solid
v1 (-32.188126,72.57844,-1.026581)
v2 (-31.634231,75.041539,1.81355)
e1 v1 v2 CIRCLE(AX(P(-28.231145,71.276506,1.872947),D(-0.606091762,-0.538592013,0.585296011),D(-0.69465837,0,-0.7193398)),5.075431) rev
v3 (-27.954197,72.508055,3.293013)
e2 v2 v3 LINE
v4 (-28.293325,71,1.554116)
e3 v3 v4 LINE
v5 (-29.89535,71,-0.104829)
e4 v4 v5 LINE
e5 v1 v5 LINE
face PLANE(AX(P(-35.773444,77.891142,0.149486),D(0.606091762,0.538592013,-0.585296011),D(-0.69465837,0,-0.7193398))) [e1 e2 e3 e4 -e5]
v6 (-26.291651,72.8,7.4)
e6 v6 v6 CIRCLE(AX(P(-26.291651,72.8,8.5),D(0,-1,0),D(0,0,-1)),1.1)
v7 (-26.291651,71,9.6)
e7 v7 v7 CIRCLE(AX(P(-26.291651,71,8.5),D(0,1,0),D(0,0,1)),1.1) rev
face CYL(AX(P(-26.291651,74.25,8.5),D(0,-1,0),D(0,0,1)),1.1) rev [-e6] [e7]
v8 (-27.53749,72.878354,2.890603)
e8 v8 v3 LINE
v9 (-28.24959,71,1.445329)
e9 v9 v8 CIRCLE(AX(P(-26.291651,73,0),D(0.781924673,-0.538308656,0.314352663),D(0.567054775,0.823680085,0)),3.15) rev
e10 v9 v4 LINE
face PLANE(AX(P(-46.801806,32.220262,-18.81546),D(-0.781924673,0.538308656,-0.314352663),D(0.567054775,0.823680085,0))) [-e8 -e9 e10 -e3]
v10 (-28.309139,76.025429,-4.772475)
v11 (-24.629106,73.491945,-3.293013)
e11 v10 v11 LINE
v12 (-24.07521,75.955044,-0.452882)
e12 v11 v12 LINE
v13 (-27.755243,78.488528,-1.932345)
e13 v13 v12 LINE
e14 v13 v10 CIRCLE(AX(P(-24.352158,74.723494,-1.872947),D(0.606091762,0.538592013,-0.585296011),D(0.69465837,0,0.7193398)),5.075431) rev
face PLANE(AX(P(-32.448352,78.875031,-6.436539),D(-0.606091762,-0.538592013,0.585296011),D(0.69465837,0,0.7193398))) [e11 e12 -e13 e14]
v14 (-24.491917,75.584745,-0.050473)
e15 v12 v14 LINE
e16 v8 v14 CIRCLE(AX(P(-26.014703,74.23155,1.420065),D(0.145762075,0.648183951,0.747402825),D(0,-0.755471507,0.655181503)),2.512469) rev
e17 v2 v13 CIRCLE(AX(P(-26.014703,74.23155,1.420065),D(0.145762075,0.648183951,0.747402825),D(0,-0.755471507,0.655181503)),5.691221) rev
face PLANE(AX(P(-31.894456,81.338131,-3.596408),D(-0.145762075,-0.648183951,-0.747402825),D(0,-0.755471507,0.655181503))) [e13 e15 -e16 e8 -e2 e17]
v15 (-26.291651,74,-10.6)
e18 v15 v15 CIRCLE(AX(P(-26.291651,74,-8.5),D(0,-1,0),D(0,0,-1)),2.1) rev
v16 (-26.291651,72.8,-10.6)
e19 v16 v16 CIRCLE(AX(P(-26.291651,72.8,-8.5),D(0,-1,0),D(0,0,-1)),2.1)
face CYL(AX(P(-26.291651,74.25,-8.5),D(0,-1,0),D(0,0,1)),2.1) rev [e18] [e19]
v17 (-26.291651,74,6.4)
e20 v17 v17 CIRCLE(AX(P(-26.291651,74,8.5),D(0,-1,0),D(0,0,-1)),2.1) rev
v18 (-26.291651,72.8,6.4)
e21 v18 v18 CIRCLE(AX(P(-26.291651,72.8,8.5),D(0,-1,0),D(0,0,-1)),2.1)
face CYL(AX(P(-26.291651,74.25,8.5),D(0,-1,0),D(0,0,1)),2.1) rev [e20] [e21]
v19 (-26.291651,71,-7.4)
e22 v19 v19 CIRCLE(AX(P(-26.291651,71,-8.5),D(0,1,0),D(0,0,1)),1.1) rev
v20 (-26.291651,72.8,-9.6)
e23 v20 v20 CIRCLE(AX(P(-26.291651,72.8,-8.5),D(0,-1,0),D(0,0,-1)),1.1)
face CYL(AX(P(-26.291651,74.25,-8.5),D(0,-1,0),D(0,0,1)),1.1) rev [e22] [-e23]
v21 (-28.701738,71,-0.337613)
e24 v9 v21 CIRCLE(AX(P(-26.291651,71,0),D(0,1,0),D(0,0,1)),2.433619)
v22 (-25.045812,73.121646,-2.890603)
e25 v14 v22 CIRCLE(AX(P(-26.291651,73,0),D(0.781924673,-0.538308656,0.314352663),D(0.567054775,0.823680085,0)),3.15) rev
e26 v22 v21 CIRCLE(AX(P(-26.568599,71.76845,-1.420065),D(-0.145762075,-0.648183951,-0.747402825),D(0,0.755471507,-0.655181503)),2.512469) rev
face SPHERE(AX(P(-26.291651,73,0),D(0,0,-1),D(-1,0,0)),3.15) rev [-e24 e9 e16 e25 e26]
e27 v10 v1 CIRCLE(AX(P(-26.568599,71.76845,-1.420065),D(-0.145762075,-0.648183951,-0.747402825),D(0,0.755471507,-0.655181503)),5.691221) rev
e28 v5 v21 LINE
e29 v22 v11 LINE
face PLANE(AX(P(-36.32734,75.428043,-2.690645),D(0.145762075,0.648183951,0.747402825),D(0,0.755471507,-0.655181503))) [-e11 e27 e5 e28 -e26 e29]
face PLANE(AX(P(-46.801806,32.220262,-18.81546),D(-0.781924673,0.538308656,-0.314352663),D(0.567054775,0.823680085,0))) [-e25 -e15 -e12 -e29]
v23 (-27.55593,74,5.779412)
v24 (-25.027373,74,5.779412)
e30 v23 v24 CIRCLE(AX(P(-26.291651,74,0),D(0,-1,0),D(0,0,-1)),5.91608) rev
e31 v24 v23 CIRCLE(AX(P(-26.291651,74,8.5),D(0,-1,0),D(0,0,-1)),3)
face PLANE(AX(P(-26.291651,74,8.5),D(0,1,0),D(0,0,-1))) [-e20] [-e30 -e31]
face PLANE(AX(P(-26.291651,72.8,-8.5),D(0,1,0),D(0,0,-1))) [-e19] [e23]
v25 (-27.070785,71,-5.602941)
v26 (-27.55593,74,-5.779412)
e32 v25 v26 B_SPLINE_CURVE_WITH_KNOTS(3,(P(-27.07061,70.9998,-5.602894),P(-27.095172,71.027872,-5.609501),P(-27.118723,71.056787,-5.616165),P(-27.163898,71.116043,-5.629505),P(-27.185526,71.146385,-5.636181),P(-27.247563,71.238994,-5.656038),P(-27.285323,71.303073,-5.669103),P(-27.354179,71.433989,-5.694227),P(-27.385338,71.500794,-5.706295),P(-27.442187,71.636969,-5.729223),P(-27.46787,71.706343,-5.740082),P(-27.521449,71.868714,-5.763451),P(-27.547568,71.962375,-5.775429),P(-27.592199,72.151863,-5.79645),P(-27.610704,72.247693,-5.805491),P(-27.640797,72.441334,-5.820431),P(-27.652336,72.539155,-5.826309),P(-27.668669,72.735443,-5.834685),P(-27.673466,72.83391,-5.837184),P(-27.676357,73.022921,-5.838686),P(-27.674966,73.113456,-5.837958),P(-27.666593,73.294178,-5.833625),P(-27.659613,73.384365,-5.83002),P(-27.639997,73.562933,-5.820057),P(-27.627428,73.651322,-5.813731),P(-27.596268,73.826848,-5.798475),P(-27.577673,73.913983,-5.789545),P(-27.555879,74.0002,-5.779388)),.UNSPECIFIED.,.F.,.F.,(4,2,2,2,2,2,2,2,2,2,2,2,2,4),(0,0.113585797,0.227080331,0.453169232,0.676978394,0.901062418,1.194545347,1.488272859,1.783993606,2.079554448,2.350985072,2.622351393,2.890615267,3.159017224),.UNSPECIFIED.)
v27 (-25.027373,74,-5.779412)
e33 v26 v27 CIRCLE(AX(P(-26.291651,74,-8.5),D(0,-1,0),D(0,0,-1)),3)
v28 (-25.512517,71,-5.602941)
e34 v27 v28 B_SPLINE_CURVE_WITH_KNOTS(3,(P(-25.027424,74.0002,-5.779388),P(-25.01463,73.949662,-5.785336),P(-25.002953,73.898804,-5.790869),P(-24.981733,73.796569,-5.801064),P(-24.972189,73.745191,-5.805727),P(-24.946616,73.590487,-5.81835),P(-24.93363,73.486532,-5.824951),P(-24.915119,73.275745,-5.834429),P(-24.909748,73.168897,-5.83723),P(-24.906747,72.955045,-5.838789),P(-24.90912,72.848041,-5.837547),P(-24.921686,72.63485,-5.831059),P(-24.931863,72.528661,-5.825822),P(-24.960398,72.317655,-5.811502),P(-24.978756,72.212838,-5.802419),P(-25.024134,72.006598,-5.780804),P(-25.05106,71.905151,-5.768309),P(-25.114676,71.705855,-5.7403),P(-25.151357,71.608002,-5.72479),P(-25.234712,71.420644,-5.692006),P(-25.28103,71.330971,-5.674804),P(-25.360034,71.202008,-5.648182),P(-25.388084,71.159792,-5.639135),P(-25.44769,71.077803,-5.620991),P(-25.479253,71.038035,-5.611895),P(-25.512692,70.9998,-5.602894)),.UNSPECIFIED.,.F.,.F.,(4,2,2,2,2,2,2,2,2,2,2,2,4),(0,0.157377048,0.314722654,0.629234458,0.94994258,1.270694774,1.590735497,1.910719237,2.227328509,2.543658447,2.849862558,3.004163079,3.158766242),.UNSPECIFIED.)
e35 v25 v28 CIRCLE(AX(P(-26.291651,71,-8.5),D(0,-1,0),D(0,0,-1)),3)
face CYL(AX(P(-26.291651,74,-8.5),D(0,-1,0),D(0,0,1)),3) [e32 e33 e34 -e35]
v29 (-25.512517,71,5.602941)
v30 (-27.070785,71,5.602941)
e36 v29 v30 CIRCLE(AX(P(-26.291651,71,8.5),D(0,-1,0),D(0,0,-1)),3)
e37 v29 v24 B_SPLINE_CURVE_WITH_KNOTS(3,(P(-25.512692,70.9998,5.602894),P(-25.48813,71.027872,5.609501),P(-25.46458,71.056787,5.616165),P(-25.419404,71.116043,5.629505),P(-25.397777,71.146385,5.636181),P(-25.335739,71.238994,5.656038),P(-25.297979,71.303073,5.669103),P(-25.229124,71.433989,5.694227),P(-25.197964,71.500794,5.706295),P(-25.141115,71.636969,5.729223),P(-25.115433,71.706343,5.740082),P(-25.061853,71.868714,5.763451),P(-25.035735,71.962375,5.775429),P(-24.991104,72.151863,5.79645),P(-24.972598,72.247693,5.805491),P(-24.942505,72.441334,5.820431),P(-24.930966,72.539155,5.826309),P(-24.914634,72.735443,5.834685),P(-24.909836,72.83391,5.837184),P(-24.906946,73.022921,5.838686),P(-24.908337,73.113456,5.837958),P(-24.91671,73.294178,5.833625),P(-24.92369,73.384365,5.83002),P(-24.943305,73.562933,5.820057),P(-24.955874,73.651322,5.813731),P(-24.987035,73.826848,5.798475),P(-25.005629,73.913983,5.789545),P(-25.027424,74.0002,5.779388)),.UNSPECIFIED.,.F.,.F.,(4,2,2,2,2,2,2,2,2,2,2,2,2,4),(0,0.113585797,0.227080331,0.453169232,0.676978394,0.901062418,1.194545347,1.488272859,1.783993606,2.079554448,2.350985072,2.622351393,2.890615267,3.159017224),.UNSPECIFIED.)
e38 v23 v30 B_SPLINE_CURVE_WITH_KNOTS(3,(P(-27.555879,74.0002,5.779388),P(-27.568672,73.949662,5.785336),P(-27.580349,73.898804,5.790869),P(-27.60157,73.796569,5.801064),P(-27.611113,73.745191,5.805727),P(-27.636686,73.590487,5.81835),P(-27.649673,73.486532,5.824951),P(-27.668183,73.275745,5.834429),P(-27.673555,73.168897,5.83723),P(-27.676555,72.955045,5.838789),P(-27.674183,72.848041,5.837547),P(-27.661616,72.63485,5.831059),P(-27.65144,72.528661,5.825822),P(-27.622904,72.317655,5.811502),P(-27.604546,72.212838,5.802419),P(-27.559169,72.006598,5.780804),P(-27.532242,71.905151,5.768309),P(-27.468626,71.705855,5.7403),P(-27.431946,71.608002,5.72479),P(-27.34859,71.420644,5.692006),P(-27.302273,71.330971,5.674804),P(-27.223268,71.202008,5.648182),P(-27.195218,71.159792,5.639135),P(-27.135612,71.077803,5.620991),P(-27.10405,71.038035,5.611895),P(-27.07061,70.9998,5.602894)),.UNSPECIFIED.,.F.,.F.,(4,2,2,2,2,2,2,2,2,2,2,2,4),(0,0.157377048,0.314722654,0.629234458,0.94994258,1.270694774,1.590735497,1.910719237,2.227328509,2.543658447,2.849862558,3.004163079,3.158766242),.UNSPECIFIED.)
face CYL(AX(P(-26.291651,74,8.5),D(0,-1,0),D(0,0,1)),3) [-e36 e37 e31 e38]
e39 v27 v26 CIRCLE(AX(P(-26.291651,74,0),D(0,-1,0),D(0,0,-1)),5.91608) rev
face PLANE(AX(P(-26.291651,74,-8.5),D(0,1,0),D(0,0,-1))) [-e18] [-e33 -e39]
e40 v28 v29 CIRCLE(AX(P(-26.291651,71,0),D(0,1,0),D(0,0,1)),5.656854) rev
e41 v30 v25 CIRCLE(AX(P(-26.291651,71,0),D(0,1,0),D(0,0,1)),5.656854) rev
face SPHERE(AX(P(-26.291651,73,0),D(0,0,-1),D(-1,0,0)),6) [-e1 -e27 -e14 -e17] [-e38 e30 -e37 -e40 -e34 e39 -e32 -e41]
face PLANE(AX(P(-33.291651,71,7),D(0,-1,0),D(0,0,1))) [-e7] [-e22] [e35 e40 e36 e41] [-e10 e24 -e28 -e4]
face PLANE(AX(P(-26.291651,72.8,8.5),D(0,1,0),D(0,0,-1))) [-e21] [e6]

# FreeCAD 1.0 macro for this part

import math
import FreeCAD as App
import Part
import Sketcher


def add_polygon(sketch, points):
    """Adds a closed chain of lines whose ends are joined by coincident constraints."""
    first, n = sketch.GeometryCount, len(points)
    for a, b in zip(points, points[1:] + points[:1]):
        sketch.addGeometry(Part.LineSegment(App.Vector(*a, 0), App.Vector(*b, 0)), False)
    for i in range(n):
        sketch.addConstraint(Sketcher.Constraint("Coincident", first + i, 2, first + (i + 1) % n, 1))

doc = App.newDocument("Part")
body = doc.addObject("PartDesign::Body", "Body")

sketch1 = doc.addObject("Sketcher::SketchObject", "Sketch")
body.addObject(sketch1)
sketch1.AttachmentSupport = (doc.XZ_Plane, [""])
sketch1.MapMode = "FlatFace"
sketch1.AttachmentOffset = App.Placement(App.Vector(0, 0, 73), App.Rotation())
sketch1.addGeometry([
    Part.LineSegment(App.Vector(-26, 6, 0), App.Vector(-26, -6, 0)),
    Part.ArcOfCircle(Part.Circle(App.Vector(-26, 0, 0), App.Vector(0, 0, 1), 6), math.radians(-90), math.radians(90)),
], False)
sketch1.addGeometry(Part.LineSegment(App.Vector(-26, -6, 0), App.Vector(-26, 6, 0)), True)
sketch1.addConstraint([
    Sketcher.Constraint("Coincident", 0, 1, 1, 2),
    Sketcher.Constraint("Coincident", 1, 1, 0, 2),
    Sketcher.Constraint("Vertical", 0),
    Sketcher.Constraint("Vertical", 2),
    Sketcher.Constraint("Coincident", 2, 1, 1, 1),
    Sketcher.Constraint("PointOnObject", 1, 3, -1),
    Sketcher.Constraint("Vertical", 1, 3, 0, 1),
    Sketcher.Constraint("Equal", 0, 2),
    Sketcher.Constraint("Radius", 1, 6.0),
    Sketcher.Constraint("DistanceX", 1, 3, -1, 1, 26.291651),
])
revolution = doc.addObject("PartDesign::Revolution", "Revolution")
body.addObject(revolution)
revolution.Profile = sketch1
revolution.ReferenceAxis = (sketch1, ["Axis0"])
revolution.Angle = 360

sketch2 = doc.addObject("Sketcher::SketchObject", "Sketch001")
body.addObject(sketch2)
sketch2.AttachmentSupport = (doc.XY_Plane, [""])
sketch2.MapMode = "FlatFace"
sketch2.AttachmentOffset = App.Placement(App.Vector(0, 0, -7), App.Rotation())
add_polygon(sketch2, [(-33, -66), (-33, -71), (-19, -71), (-19, -66)])
sketch2.addConstraint([
    Sketcher.Constraint("Vertical", 0),
    Sketcher.Constraint("Horizontal", 1),
    Sketcher.Constraint("Vertical", 2),
    Sketcher.Constraint("Horizontal", 3),
    Sketcher.Constraint("DistanceX", 1, 1, 1, 2, 14.0),
    Sketcher.Constraint("DistanceY", 0, 2, 0, 1, 5.0),
    Sketcher.Constraint("DistanceY", 0, 2, -1, 1, 71.0),
    Sketcher.Constraint("DistanceX", 0, 2, -1, 1, 33.291651),
])
pocket1 = doc.addObject("PartDesign::Pocket", "Pocket")
body.addObject(pocket1)
pocket1.Profile = sketch2
pocket1.Length = 14
pocket1.Reversed = True

sketch3 = doc.addObject("Sketcher::SketchObject", "Sketch002")
body.addObject(sketch3)
sketch3.AttachmentSupport = (doc.XZ_Plane, [""])
sketch3.MapMode = "FlatFace"
sketch3.AttachmentOffset = App.Placement(App.Vector(0, 0, 71), App.Rotation())
sketch3.addGeometry(Part.Circle(App.Vector(-26.3, -8.5, 0), App.Vector(0, 0, 1), 3), False)
sketch3.addConstraint([
    Sketcher.Constraint("Diameter", 0, 6.0),
    Sketcher.Constraint("DistanceY", 0, 3, -1, 1, 8.5),
    Sketcher.Constraint("DistanceX", 0, 3, -1, 1, 26.291651),
])
pad1 = doc.addObject("PartDesign::Pad", "Pad")
body.addObject(pad1)
pad1.Profile = sketch3
pad1.Length = 3

sketch4 = doc.addObject("Sketcher::SketchObject", "Sketch003")
body.addObject(sketch4)
sketch4.AttachmentSupport = (doc.XZ_Plane, [""])
sketch4.MapMode = "FlatFace"
sketch4.AttachmentOffset = App.Placement(App.Vector(0, 0, 71), App.Rotation())
sketch4.addGeometry(Part.Circle(App.Vector(-26.3, 8.5, 0), App.Vector(0, 0, 1), 3), False)
sketch4.addConstraint([
    Sketcher.Constraint("Diameter", 0, 6.0),
    Sketcher.Constraint("DistanceY", -1, 1, 0, 3, 8.5),
    Sketcher.Constraint("DistanceX", 0, 3, -1, 1, 26.291651),
])
pad2 = doc.addObject("PartDesign::Pad", "Pad001")
body.addObject(pad2)
pad2.Profile = sketch4
pad2.Length = 3

sketch5 = doc.addObject("Sketcher::SketchObject", "Sketch004")
body.addObject(sketch5)
sketch5.AttachmentSupport = (doc.XZ_Plane, [""])
sketch5.MapMode = "FlatFace"
sketch5.AttachmentOffset = App.Placement(App.Vector(0, 0, 73), App.Rotation())
sketch5.addGeometry([
    Part.LineSegment(App.Vector(-26.3, 3.1, 0), App.Vector(-26.3, -3.1, 0)),
    Part.ArcOfCircle(Part.Circle(App.Vector(-26.3, 0, 0), App.Vector(0, 0, 1), 3.1), math.radians(-90), math.radians(90)),
], False)
sketch5.addGeometry(Part.LineSegment(App.Vector(-26.3, -3.1, 0), App.Vector(-26.3, 3.1, 0)), True)
sketch5.addConstraint([
    Sketcher.Constraint("Coincident", 0, 1, 1, 2),
    Sketcher.Constraint("Coincident", 1, 1, 0, 2),
    Sketcher.Constraint("Vertical", 0),
    Sketcher.Constraint("Vertical", 2),
    Sketcher.Constraint("Coincident", 2, 1, 1, 1),
    Sketcher.Constraint("PointOnObject", 1, 3, -1),
    Sketcher.Constraint("Vertical", 1, 3, 0, 1),
    Sketcher.Constraint("Equal", 0, 2),
    Sketcher.Constraint("Radius", 1, 3.15),
    Sketcher.Constraint("DistanceX", 1, 3, -1, 1, 26.291651),
])
groove = doc.addObject("PartDesign::Groove", "Groove")
body.addObject(groove)
groove.Profile = sketch5
groove.ReferenceAxis = (sketch5, ["Axis0"])
groove.Angle = 360

sketch6 = doc.addObject("Sketcher::SketchObject", "Sketch005")
body.addObject(sketch6)
sketch6.AttachmentSupport = (doc.XZ_Plane, [""])
sketch6.MapMode = "FlatFace"
sketch6.AttachmentOffset = App.Placement(App.Vector(0, 0, 70), App.Rotation())
sketch6.addGeometry(Part.Circle(App.Vector(-26.3, -8.5, 0), App.Vector(0, 0, 1), 1.1), False)
sketch6.addConstraint([
    Sketcher.Constraint("Diameter", 0, 2.2),
    Sketcher.Constraint("DistanceY", 0, 3, -1, 1, 8.5),
    Sketcher.Constraint("DistanceX", 0, 3, -1, 1, 26.291651),
])
pocket2 = doc.addObject("PartDesign::Pocket", "Pocket001")
body.addObject(pocket2)
pocket2.Profile = sketch6
pocket2.Length = 4.25
pocket2.Reversed = True

sketch7 = doc.addObject("Sketcher::SketchObject", "Sketch006")
body.addObject(sketch7)
sketch7.AttachmentSupport = (doc.XZ_Plane, [""])
sketch7.MapMode = "FlatFace"
sketch7.AttachmentOffset = App.Placement(App.Vector(0, 0, 72.8), App.Rotation())
sketch7.addGeometry(Part.Circle(App.Vector(-26.3, -8.5, 0), App.Vector(0, 0, 1), 2.1), False)
sketch7.addConstraint([
    Sketcher.Constraint("Diameter", 0, 4.2),
    Sketcher.Constraint("DistanceY", 0, 3, -1, 1, 8.5),
    Sketcher.Constraint("DistanceX", 0, 3, -1, 1, 26.291651),
])
pocket3 = doc.addObject("PartDesign::Pocket", "Pocket002")
body.addObject(pocket3)
pocket3.Profile = sketch7
pocket3.Length = 1.45
pocket3.Reversed = True

sketch8 = doc.addObject("Sketcher::SketchObject", "Sketch007")
body.addObject(sketch8)
sketch8.AttachmentSupport = (doc.XZ_Plane, [""])
sketch8.MapMode = "FlatFace"
sketch8.AttachmentOffset = App.Placement(App.Vector(0, 0, 70), App.Rotation())
sketch8.addGeometry(Part.Circle(App.Vector(-26.3, 8.5, 0), App.Vector(0, 0, 1), 1.1), False)
sketch8.addConstraint([
    Sketcher.Constraint("Diameter", 0, 2.2),
    Sketcher.Constraint("DistanceY", -1, 1, 0, 3, 8.5),
    Sketcher.Constraint("DistanceX", 0, 3, -1, 1, 26.291651),
])
pocket4 = doc.addObject("PartDesign::Pocket", "Pocket003")
body.addObject(pocket4)
pocket4.Profile = sketch8
pocket4.Length = 4.25
pocket4.Reversed = True

sketch9 = doc.addObject("Sketcher::SketchObject", "Sketch008")
body.addObject(sketch9)
sketch9.AttachmentSupport = (doc.XZ_Plane, [""])
sketch9.MapMode = "FlatFace"
sketch9.AttachmentOffset = App.Placement(App.Vector(0, 0, 72.8), App.Rotation())
sketch9.addGeometry(Part.Circle(App.Vector(-26.3, 8.5, 0), App.Vector(0, 0, 1), 2.1), False)
sketch9.addConstraint([
    Sketcher.Constraint("Diameter", 0, 4.2),
    Sketcher.Constraint("DistanceY", -1, 1, 0, 3, 8.5),
    Sketcher.Constraint("DistanceX", 0, 3, -1, 1, 26.291651),
])
pocket5 = doc.addObject("PartDesign::Pocket", "Pocket004")
body.addObject(pocket5)
pocket5.Profile = sketch9
pocket5.Length = 1.45
pocket5.Reversed = True

sketch10 = doc.addObject("Sketcher::SketchObject", "Sketch009")
body.addObject(sketch10)
sketch10.Placement = App.Placement(App.Vector(-46.801806, -32.220262, -18.81546), App.Rotation(App.Vector(-0.258926028, -0.178255179, 0.949306275), App.Vector(-0.567054775, 0.823680085, 0), App.Vector(-0.781924673, -0.538308656, -0.314352663), "ZXY"))
add_polygon(sketch10, [(20.3, -41.5), (16.4, -46.6), (19.3, -48.9), (23.3, -43.9)])
sketch10.addConstraint([
    Sketcher.Constraint("Perpendicular", 0, 1),
    Sketcher.Constraint("Perpendicular", 1, 2),
    Sketcher.Constraint("Perpendicular", 2, 3),
    Sketcher.Constraint("Distance", 0, 6.4),
    Sketcher.Constraint("Distance", 1, 3.8),
    Sketcher.Constraint("DistanceY", 0, 2, -1, 1, 46.5678),
    Sketcher.Constraint("DistanceX", -1, 1, 0, 2, 16.351359),
    Sketcher.Constraint("DistanceY", 2, 2, -1, 1, 43.87188),
])
pocket6 = doc.addObject("PartDesign::Pocket", "Pocket005")
body.addObject(pocket6)
pocket6.Profile = sketch10
pocket6.Length = 10
pocket6.Reversed = True
body2 = doc.addObject("PartDesign::Body", "Body001")
doc.recompute()

mirroring = doc.addObject("Part::Mirroring", "Mirroring")
mirroring.Source = body
mirroring.Base = App.Vector(0, 0, 0)
mirroring.Normal = App.Vector(0, -1, 0)
body2.BaseFeature = mirroring
doc.recompute()
body.Visibility = False
mirroring.Visibility = False

doc.recompute()
